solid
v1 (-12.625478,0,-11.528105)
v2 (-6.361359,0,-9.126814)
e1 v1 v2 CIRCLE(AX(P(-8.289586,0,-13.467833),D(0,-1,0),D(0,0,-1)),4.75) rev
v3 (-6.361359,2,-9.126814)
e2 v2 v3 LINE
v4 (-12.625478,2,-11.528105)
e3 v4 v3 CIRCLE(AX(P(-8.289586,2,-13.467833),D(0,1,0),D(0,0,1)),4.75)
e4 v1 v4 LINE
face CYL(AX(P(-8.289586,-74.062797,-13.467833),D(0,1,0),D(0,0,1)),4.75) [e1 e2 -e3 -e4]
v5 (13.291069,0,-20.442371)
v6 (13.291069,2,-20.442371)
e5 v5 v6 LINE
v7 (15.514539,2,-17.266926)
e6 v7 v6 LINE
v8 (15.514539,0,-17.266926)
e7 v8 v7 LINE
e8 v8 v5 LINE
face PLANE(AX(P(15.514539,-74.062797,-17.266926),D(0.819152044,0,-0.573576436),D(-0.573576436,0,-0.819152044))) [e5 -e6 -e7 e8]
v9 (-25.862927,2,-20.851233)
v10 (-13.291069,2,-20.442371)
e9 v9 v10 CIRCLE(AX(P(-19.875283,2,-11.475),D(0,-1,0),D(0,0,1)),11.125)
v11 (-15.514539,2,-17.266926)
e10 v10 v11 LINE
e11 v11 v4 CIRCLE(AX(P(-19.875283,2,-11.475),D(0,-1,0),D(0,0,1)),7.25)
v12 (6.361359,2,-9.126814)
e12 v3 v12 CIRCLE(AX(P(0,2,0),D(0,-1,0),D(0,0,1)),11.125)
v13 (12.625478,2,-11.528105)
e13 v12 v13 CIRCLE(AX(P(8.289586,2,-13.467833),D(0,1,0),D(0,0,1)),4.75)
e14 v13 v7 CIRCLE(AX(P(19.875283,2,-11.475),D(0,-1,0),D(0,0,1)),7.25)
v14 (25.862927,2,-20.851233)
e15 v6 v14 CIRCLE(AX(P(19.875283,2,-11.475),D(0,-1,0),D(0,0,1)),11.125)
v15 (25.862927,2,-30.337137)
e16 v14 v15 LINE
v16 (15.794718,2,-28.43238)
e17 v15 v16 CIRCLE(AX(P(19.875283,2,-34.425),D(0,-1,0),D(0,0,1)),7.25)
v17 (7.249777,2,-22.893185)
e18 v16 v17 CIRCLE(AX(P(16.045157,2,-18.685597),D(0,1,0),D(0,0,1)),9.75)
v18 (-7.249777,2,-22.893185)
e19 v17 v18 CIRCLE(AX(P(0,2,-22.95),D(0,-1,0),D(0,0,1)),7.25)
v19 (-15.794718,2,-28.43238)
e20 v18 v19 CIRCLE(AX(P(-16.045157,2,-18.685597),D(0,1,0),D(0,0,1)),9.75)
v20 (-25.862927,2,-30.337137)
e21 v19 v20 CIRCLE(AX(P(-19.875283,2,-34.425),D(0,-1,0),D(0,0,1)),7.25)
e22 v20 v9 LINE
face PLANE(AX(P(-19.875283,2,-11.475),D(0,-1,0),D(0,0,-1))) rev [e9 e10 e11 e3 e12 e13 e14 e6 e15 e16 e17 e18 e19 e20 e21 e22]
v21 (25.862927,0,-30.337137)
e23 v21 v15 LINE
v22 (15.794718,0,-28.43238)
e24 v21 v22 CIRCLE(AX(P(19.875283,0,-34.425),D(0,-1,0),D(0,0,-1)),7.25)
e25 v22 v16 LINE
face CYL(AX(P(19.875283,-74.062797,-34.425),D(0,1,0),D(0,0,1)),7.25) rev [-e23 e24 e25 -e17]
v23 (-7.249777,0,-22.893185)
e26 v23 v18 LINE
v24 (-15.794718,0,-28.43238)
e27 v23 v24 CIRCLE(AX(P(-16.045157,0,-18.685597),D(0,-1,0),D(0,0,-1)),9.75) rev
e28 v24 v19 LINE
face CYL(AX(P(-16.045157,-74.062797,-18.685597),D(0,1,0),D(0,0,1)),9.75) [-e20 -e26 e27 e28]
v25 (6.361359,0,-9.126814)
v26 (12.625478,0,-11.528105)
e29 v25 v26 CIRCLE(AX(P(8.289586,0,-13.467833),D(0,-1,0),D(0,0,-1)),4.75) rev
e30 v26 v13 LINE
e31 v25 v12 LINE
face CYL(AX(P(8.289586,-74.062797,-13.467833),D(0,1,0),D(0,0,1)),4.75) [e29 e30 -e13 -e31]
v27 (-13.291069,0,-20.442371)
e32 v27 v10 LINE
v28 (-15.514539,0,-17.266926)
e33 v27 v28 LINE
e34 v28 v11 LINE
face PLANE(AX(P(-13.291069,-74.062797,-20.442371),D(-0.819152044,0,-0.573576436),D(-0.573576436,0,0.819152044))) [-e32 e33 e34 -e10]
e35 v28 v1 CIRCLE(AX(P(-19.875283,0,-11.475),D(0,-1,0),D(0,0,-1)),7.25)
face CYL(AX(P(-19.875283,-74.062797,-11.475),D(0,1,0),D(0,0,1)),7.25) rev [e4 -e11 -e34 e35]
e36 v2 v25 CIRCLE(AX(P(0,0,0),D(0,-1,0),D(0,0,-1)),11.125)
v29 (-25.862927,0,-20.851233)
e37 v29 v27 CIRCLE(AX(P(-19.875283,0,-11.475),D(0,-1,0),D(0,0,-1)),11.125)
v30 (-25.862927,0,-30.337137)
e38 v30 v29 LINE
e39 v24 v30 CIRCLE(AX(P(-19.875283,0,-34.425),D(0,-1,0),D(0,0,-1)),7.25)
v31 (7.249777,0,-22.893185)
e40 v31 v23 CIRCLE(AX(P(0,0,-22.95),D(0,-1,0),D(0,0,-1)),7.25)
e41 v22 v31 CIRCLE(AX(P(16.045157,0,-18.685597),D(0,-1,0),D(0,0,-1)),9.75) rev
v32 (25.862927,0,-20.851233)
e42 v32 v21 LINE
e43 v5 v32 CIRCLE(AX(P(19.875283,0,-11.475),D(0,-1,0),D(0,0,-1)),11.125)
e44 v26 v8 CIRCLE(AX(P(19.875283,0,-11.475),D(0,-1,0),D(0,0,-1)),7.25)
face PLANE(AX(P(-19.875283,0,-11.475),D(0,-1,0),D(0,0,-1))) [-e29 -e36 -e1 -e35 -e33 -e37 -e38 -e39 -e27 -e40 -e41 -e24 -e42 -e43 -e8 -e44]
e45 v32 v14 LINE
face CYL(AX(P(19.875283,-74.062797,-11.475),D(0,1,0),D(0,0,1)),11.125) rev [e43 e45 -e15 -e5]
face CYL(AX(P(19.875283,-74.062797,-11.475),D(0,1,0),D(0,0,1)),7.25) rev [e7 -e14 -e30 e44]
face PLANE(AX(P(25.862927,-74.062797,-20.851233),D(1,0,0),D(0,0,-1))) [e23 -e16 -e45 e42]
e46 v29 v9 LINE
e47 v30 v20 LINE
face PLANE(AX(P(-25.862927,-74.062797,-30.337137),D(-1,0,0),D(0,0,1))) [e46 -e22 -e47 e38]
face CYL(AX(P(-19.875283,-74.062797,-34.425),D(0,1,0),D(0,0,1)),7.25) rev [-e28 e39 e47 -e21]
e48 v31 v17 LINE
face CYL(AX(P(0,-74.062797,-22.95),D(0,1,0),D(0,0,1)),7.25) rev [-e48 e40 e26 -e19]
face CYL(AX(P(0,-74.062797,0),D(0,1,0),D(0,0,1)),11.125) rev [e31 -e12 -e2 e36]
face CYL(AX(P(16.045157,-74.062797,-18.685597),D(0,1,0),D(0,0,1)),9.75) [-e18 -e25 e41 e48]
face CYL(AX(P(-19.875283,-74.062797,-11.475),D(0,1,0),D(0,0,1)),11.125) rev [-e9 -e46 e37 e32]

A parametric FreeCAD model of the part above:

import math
import FreeCAD as App
import Part
import Sketcher

V = App.Vector
Q = App.Units.Quantity


def add_polygon(sketch, points):
    """Adds a closed chain of lines whose ends are joined by coincident constraints."""
    first, n = sketch.GeometryCount, len(points)
    for a, b in zip(points, points[1:] + points[:1]):
        sketch.addGeometry(Part.LineSegment(App.Vector(*a, 0), App.Vector(*b, 0)), False)
    for i in range(n):
        sketch.addConstraint(Sketcher.Constraint("Coincident", first + i, 2, first + (i + 1) % n, 1))

doc = App.newDocument("Part")
body = doc.addObject("PartDesign::Body", "Body")

# Sketch on XZ plane
sketch1 = doc.addObject("Sketcher::SketchObject", "Sketch")
body.addObject(sketch1)
sketch1.AttachmentSupport = (doc.XZ_Plane, [""])
sketch1.MapMode = "FlatFace"
sketch1.addGeometry([
    Part.LineSegment(V(-13.6, -20.4, 0), V(-15.9, -17.2, 0)),  # 0
    Part.ArcOfCircle(Part.Circle(V(-19.9, -11.5, 0), V(0, 0, 1), 7), math.radians(-55), math.radians(0)),  # 1
    Part.ArcOfCircle(Part.Circle(V(-8.3, -13.5, 0), V(0, 0, 1), 5), math.radians(66), math.radians(157)),  # 2
    Part.ArcOfCircle(Part.Circle(V(0, 0, 0), V(0, 0, 1), 10.9), math.radians(-125), math.radians(-55)),  # 3
    Part.ArcOfCircle(Part.Circle(V(8.3, -13.5, 0), V(0, 0, 1), 5), math.radians(23), math.radians(114)),  # 4
    Part.ArcOfCircle(Part.Circle(V(19.9, -11.5, 0), V(0, 0, 1), 7), math.radians(-180), math.radians(-125)),  # 5
    Part.LineSegment(V(15.9, -17.2, 0), V(13.6, -20.4, 0)),  # 6
    Part.ArcOfCircle(Part.Circle(V(19.9, -11.5, 0), V(0, 0, 1), 10.9), math.radians(-125), math.radians(-55)),  # 7
    Part.LineSegment(V(26.1, -20.4, 0), V(26.1, -31.2, 0)),  # 8
    Part.ArcOfCircle(Part.Circle(V(19.9, -34.4, 0), V(0, 0, 1), 7), math.radians(27), math.radians(125)),  # 9
    Part.ArcOfCircle(Part.Circle(V(16, -18.7, 0), V(0, 0, 1), 10), math.radians(-155), math.radians(-91)),  # 10
    Part.ArcOfCircle(Part.Circle(V(0, -22.9, 0), V(0, 0, 1), 7), math.radians(0), math.radians(180)),  # 11
    Part.ArcOfCircle(Part.Circle(V(-16, -18.7, 0), V(0, 0, 1), 10), math.radians(-89), math.radians(-25)),  # 12
    Part.ArcOfCircle(Part.Circle(V(-19.9, -34.4, 0), V(0, 0, 1), 7), math.radians(55), math.radians(153)),  # 13
    Part.LineSegment(V(-26.1, -31.2, 0), V(-26.1, -20.4, 0)),  # 14
    Part.ArcOfCircle(Part.Circle(V(-19.9, -11.5, 0), V(0, 0, 1), 10.9), math.radians(-125), math.radians(-55)),  # 15
], False)
sketch1.addConstraint([
    Sketcher.Constraint("Coincident", 0, 2, 1, 1),
    Sketcher.Constraint("Coincident", 1, 2, 2, 2),
    Sketcher.Constraint("Coincident", 2, 1, 3, 1),
    Sketcher.Constraint("Coincident", 3, 2, 4, 2),
    Sketcher.Constraint("Coincident", 4, 1, 5, 1),
    Sketcher.Constraint("Coincident", 5, 2, 6, 1),
    Sketcher.Constraint("Coincident", 6, 2, 7, 1),
    Sketcher.Constraint("Coincident", 7, 2, 8, 1),
    Sketcher.Constraint("Coincident", 8, 2, 9, 1),
    Sketcher.Constraint("Coincident", 9, 2, 10, 2),
    Sketcher.Constraint("Coincident", 10, 1, 11, 1),
    Sketcher.Constraint("Coincident", 11, 2, 12, 2),
    Sketcher.Constraint("Coincident", 12, 1, 13, 1),
    Sketcher.Constraint("Coincident", 13, 2, 14, 1),
    Sketcher.Constraint("Coincident", 14, 2, 15, 1),
    Sketcher.Constraint("Coincident", 15, 2, 0, 1),
    Sketcher.Constraint("Vertical", 8),
    Sketcher.Constraint("Vertical", 14),
    Sketcher.Constraint("Coincident", 3, 3, -1, 1),
    Sketcher.Constraint("Coincident", 7, 3, 5, 3),
    Sketcher.Constraint("Coincident", 15, 3, 1, 3),
    Sketcher.Constraint("Equal", 2, 4),
    Sketcher.Constraint("Equal", 1, 5),
    Sketcher.Constraint("Equal", 3, 7),
    Sketcher.Constraint("Equal", 5, 9),
    Sketcher.Constraint("Equal", 9, 11),
    Sketcher.Constraint("Equal", 10, 12),
    Sketcher.Constraint("Equal", 11, 13),
    Sketcher.Constraint("Equal", 7, 15),
    Sketcher.Constraint("Symmetric", 2, 3, 4, 3, -2),
    Sketcher.Constraint("Symmetric", 1, 3, 5, 3, -2),
    Sketcher.Constraint("Symmetric", 10, 3, 12, 3, -2),
    Sketcher.Constraint("Symmetric", 9, 3, 13, 3, -2),
    Sketcher.Constraint("PointOnObject", 11, 3, -2),
    Sketcher.Constraint("Horizontal", 15, 3, 1, 2),
    Sketcher.Constraint("Horizontal", 0, 2, 5, 2),
    Sketcher.Constraint("Horizontal", 6, 2, 7, 2),
    Sketcher.Constraint("Horizontal", 11, 3, 10, 1),
    Sketcher.Constraint("Horizontal", 8, 2, 13, 2),
    Sketcher.Constraint("Horizontal", 14, 2, 15, 2),
    Sketcher.Constraint("Vertical", 7, 3, 9, 3),
    Sketcher.Constraint("Radius", 1, Q("7 mm")),
    Sketcher.Constraint("Radius", 2, Q("5 mm")),
    Sketcher.Constraint("Radius", 10, Q("10 mm")),
    Sketcher.Constraint("Angle", 0, Q("125 deg")),
    Sketcher.Constraint("Radius", 3, Q("10.875 mm")),
    Sketcher.Constraint("DistanceY", 11, 3, -1, 1, Q("22.95 mm")),
    Sketcher.Constraint("DistanceY", 9, 3, 5, 3, Q("22.95 mm")),
    Sketcher.Constraint("DistanceY", 1, 3, -1, 1, Q("11.475 mm")),
    Sketcher.Constraint("DistanceY", 9, 2, 5, 2, Q("11.475 mm")),
    Sketcher.Constraint("DistanceY", 8, 2, 8, 1, Q("10.864962 mm")),
    Sketcher.Constraint("DistanceY", 2, 1, -1, 1, Q("8.908278 mm")),
    Sketcher.Constraint("DistanceX", -1, 1, 6, 2, Q("13.637639 mm")),
])
pad1 = doc.addObject("PartDesign::Pad", "Pad")
body.addObject(pad1)
pad1.Profile = sketch1
pad1.Length = 2
pad1.Reversed = True

# Sketch on XZ plane
sketch2 = doc.addObject("Sketcher::SketchObject", "Sketch001")
body.addObject(sketch2)
sketch2.AttachmentSupport = (doc.XZ_Plane, [""])
sketch2.MapMode = "FlatFace"
sketch2.AttachmentOffset = App.Placement(V(0, 0, -2), App.Rotation())
add_polygon(sketch2, [(-32.1, -34.8), (-32.1, -5.5), (35.9, -5.5), (35.9, -34.8)])  # lines 0-3
sketch2.addGeometry(Part.LineSegment(V(25.9, -30.3, 0), V(25.9, -20.9, 0)), False)  # 4
sketch2.addGeometry(Part.ArcOfCircle(Part.Circle(V(19.9, -11.5, 0), V(0, 0, 1), 11.1), math.radians(-126), math.radians(-57)), False)  # 5
sketch2.addGeometry(Part.LineSegment(V(13.3, -20.4, 0), V(15.5, -17.3, 0)), False)  # 6
sketch2.addGeometry(Part.ArcOfCircle(Part.Circle(V(19.9, -11.5, 0), V(0, 0, 1), 7.2), math.radians(-180), math.radians(-127)), False)  # 7
sketch2.addGeometry(Part.ArcOfCircle(Part.Circle(V(8.3, -13.5, 0), V(0, 0, 1), 4.8), math.radians(24), math.radians(114)), False)  # 8
sketch2.addGeometry(Part.ArcOfCircle(Part.Circle(V(0, 0, 0), V(0, 0, 1), 11.1), math.radians(-125), math.radians(-55)), False)  # 9
sketch2.addGeometry(Part.ArcOfCircle(Part.Circle(V(-8.3, -13.5, 0), V(0, 0, 1), 4.8), math.radians(66), math.radians(156)), False)  # 10
sketch2.addGeometry(Part.ArcOfCircle(Part.Circle(V(-19.9, -11.5, 0), V(0, 0, 1), 7.2), math.radians(-53), math.radians(0)), False)  # 11
sketch2.addGeometry(Part.LineSegment(V(-15.5, -17.3, 0), V(-13.3, -20.4, 0)), False)  # 12
sketch2.addGeometry(Part.ArcOfCircle(Part.Circle(V(-19.9, -11.5, 0), V(0, 0, 1), 11.1), math.radians(-123), math.radians(-54)), False)  # 13
sketch2.addGeometry(Part.LineSegment(V(-25.9, -20.9, 0), V(-25.9, -30.3, 0)), False)  # 14
sketch2.addGeometry(Part.ArcOfCircle(Part.Circle(V(-19.9, -34.4, 0), V(0, 0, 1), 7.2), math.radians(56), math.radians(146)), False)  # 15
sketch2.addGeometry(Part.ArcOfCircle(Part.Circle(V(-16, -18.7, 0), V(0, 0, 1), 9.8), math.radians(-89), math.radians(-26)), False)  # 16
sketch2.addGeometry(Part.ArcOfCircle(Part.Circle(V(0, -22.9, 0), V(0, 0, 1), 7.2), math.radians(0), math.radians(180)), False)  # 17
sketch2.addGeometry(Part.ArcOfCircle(Part.Circle(V(16, -18.7, 0), V(0, 0, 1), 9.8), math.radians(-154), math.radians(-91)), False)  # 18
sketch2.addGeometry(Part.ArcOfCircle(Part.Circle(V(19.9, -34.4, 0), V(0, 0, 1), 7.2), math.radians(34), math.radians(124)), False)  # 19
sketch2.addConstraint([
    Sketcher.Constraint("Coincident", 4, 2, 5, 2),
    Sketcher.Constraint("Coincident", 5, 1, 6, 1),
    Sketcher.Constraint("Coincident", 6, 2, 7, 2),
    Sketcher.Constraint("Coincident", 7, 1, 8, 1),
    Sketcher.Constraint("Coincident", 8, 2, 9, 2),
    Sketcher.Constraint("Coincident", 9, 1, 10, 1),
    Sketcher.Constraint("Coincident", 10, 2, 11, 2),
    Sketcher.Constraint("Coincident", 11, 1, 12, 1),
    Sketcher.Constraint("Coincident", 12, 2, 13, 2),
    Sketcher.Constraint("Coincident", 13, 1, 14, 1),
    Sketcher.Constraint("Coincident", 14, 2, 15, 2),
    Sketcher.Constraint("Coincident", 15, 1, 16, 1),
    Sketcher.Constraint("Coincident", 16, 2, 17, 2),
    Sketcher.Constraint("Coincident", 17, 1, 18, 1),
    Sketcher.Constraint("Coincident", 18, 2, 19, 2),
    Sketcher.Constraint("Coincident", 19, 1, 4, 1),
    Sketcher.Constraint("Vertical", 0),
    Sketcher.Constraint("Horizontal", 1),
    Sketcher.Constraint("Vertical", 2),
    Sketcher.Constraint("Horizontal", 3),
    Sketcher.Constraint("Vertical", 4),
    Sketcher.Constraint("Vertical", 14),
    Sketcher.Constraint("Coincident", 9, 3, -1, 1),
    Sketcher.Constraint("Coincident", 7, 3, 5, 3),
    Sketcher.Constraint("Coincident", 13, 3, 11, 3),
    Sketcher.Constraint("Equal", 5, 9),
    Sketcher.Constraint("Equal", 8, 10),
    Sketcher.Constraint("Equal", 7, 11),
    Sketcher.Constraint("Equal", 9, 13),
    Sketcher.Constraint("Equal", 11, 15),
    Sketcher.Constraint("Equal", 15, 17),
    Sketcher.Constraint("Equal", 16, 18),
    Sketcher.Constraint("Equal", 17, 19),
    Sketcher.Constraint("Symmetric", 8, 3, 10, 3, -2),
    Sketcher.Constraint("Symmetric", 5, 3, 11, 3, -2),
    Sketcher.Constraint("Symmetric", 16, 3, 18, 3, -2),
    Sketcher.Constraint("Symmetric", 15, 3, 19, 3, -2),
    Sketcher.Constraint("PointOnObject", 17, 3, -2),
    Sketcher.Constraint("Horizontal", 6, 2, 11, 1),
    Sketcher.Constraint("Horizontal", 5, 1, 12, 2),
    Sketcher.Constraint("Horizontal", 4, 2, 13, 1),
    Sketcher.Constraint("Vertical", 13, 3, 15, 3),
    Sketcher.Constraint("Angle", 6, Q("55 deg")),
    Sketcher.Constraint("Radius", 7, Q("7.25 mm")),
    Sketcher.Constraint("Radius", 8, Q("4.75 mm")),
    Sketcher.Constraint("Radius", 16, Q("9.75 mm")),
    Sketcher.Constraint("Radius", 5, Q("11.125 mm")),
    Sketcher.Constraint("DistanceY", 17, 3, -1, 1, Q("22.95 mm")),
    Sketcher.Constraint("DistanceY", 15, 3, 11, 3, Q("22.95 mm")),
    Sketcher.Constraint("DistanceY", 5, 3, -1, 1, Q("11.475 mm")),
    Sketcher.Constraint("DistanceX", 1, 1, 1, 2, Q("68.030539 mm")),
    Sketcher.Constraint("DistanceX", 4, 2, 2, 2, Q("10.059201 mm")),
    Sketcher.Constraint("DistanceX", 16, 3, 9, 1, Q("9.683798 mm")),
    Sketcher.Constraint("DistanceY", 0, 1, 0, 2, Q("29.277016 mm")),
    Sketcher.Constraint("DistanceY", 4, 1, 4, 2, Q("9.485904 mm")),
    Sketcher.Constraint("DistanceX", 0, 2, -1, 1, Q("32.108411 mm")),
    Sketcher.Constraint("DistanceX", -1, 1, 5, 1, Q("13.291069 mm")),
    Sketcher.Constraint("DistanceX", -1, 1, 8, 2, Q("6.361359 mm")),
    Sketcher.Constraint("DistanceX", 15, 1, -1, 1, Q("15.794718 mm")),
    Sketcher.Constraint("DistanceX", 10, 3, 8, 3, Q("16.579172 mm")),
    Sketcher.Constraint("DistanceY", 16, 3, 0, 2, Q("13.157889 mm")),
])
pocket1 = doc.addObject("PartDesign::Pocket", "Pocket")
body.addObject(pocket1)
pocket1.Profile = sketch2
pocket1.Length = 2
pocket1.Reversed = True

doc.recompute()
